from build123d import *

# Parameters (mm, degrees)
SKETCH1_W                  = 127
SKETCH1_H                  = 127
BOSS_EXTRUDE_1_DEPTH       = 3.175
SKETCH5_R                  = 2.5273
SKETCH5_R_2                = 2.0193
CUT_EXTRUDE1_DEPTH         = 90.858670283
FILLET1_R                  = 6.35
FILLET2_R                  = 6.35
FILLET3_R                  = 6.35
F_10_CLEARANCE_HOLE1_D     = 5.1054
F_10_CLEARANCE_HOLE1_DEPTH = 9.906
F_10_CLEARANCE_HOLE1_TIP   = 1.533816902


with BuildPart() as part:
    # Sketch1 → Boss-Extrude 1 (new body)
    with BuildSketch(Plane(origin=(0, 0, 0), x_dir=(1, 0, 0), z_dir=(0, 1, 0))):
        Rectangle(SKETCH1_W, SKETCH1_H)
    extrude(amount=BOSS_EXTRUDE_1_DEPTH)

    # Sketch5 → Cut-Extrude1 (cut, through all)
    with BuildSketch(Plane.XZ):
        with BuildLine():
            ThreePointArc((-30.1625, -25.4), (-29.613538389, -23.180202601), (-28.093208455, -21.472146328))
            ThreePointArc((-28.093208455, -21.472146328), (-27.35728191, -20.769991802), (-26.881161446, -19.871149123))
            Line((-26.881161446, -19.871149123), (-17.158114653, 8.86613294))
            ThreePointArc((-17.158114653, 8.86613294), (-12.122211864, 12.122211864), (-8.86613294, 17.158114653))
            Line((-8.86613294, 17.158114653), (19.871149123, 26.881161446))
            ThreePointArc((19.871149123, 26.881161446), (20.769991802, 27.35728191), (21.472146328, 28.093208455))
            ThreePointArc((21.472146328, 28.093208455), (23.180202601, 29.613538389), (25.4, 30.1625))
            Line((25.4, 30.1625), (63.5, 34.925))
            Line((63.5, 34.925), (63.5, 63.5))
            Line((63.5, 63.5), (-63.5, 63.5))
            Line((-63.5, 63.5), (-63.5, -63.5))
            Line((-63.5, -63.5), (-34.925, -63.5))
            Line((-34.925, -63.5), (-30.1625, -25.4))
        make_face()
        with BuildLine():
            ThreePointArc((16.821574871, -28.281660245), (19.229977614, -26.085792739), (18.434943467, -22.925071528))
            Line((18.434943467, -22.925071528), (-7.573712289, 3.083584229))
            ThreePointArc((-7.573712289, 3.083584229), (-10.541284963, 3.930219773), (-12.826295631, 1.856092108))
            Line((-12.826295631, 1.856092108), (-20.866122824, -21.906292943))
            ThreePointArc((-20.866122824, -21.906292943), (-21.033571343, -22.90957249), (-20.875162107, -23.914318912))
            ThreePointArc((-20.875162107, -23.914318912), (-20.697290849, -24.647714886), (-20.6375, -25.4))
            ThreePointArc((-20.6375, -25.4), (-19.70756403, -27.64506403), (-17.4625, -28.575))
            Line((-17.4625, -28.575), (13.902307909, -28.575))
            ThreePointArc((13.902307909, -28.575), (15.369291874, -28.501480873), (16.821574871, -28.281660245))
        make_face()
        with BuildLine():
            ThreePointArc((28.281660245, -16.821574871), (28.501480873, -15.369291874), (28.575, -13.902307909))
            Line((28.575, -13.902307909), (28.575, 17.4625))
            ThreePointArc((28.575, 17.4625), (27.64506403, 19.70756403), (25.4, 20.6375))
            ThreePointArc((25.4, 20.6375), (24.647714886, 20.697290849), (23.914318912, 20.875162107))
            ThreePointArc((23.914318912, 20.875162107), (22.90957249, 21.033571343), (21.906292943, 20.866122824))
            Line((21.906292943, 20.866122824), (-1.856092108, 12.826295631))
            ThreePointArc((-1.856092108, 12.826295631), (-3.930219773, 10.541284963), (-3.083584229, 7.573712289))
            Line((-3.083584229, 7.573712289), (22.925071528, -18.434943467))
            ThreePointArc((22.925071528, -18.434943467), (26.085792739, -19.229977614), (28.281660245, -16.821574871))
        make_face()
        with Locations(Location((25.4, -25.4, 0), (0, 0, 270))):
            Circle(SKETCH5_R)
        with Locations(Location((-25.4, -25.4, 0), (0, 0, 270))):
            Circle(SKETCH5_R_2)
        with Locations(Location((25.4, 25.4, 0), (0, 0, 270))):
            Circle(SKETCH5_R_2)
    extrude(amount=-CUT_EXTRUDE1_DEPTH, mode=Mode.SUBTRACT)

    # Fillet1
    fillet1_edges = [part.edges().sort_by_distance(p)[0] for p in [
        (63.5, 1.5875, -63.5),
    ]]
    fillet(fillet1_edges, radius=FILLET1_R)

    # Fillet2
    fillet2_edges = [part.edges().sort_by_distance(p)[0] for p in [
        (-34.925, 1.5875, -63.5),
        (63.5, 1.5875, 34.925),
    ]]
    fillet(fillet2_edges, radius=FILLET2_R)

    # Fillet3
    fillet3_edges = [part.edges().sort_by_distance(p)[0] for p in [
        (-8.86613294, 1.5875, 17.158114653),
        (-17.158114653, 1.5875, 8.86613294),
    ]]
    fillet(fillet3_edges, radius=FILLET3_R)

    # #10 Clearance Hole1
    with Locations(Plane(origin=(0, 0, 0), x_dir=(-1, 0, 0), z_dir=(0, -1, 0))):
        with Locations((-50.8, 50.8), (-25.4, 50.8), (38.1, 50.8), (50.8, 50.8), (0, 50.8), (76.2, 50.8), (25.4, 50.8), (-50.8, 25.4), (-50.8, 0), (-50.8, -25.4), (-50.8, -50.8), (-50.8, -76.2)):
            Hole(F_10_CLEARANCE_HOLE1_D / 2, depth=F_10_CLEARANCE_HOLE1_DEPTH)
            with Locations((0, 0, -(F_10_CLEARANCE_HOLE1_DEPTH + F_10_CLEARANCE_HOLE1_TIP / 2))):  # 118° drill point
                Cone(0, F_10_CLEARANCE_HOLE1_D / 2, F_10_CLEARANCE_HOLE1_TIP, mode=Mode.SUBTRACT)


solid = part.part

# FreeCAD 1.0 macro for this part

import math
import FreeCAD as App
import Part
import Sketcher
Q = App.Units.Quantity


def edges_at(feature, points):
    """Names of the edges that pass closest to the given points."""
    edges = feature.Shape.Edges
    near = lambda p: min(range(len(edges)), key=lambda i: edges[i].distToShape(Part.Vertex(*p))[0])
    return sorted({f"Edge{near(p) + 1}" for p in points})

doc = App.newDocument("Part")
body = doc.addObject("PartDesign::Body", "Body")

# Sketch on XZ plane
sketch1 = body.newObject("Sketcher::SketchObject", "Sketch")
sketch1.AttachmentSupport = (doc.getObject("XZ_Plane"), [""])
sketch1.MapMode = "FlatFace"
sketch1.addGeometry([
    Part.LineSegment(App.Vector(-63.5, -63.5, 0), App.Vector(-63.5, 63.5, 0)),
    Part.LineSegment(App.Vector(-63.5, 63.5, 0), App.Vector(63.5, 63.5, 0)),
    Part.LineSegment(App.Vector(63.5, 63.5, 0), App.Vector(63.5, -63.5, 0)),
    Part.LineSegment(App.Vector(63.5, -63.5, 0), App.Vector(-63.5, -63.5, 0)),
], False)
sketch1.addConstraint([
    Sketcher.Constraint("Coincident", 0, 2, 1, 1),
    Sketcher.Constraint("Coincident", 1, 2, 2, 1),
    Sketcher.Constraint("Coincident", 2, 2, 3, 1),
    Sketcher.Constraint("Coincident", 3, 2, 0, 1),
    Sketcher.Constraint("Vertical", 0),
    Sketcher.Constraint("Horizontal", 1),
    Sketcher.Constraint("Vertical", 2),
    Sketcher.Constraint("Horizontal", 3),
    Sketcher.Constraint("Symmetric", 0, 2, 2, 2, -1, 1),
    Sketcher.Constraint("Equal", 3, 0),
    Sketcher.Constraint("DistanceX", 1, 1, 1, 2, Q("5 in")),
])
pad1 = body.newObject("PartDesign::Pad", "Pad")
pad1.Profile = sketch1
pad1.Length = Q("0.125 in")
pad1.Reversed = True

# Sketch on XZ plane
sketch2 = body.newObject("Sketcher::SketchObject", "Sketch001")
sketch2.AttachmentSupport = (doc.getObject("XZ_Plane"), [""])
sketch2.MapMode = "FlatFace"
sketch2.addGeometry([
    Part.ArcOfCircle(Part.Circle(App.Vector(-25.4, -25.4, 0), App.Vector(0, 0, 1), 4.7625), math.radians(124.437234), math.radians(180)),  # 0
    Part.ArcOfCircle(Part.Circle(App.Vector(-29.888681, -18.853577, 0), App.Vector(0, 0, 1), 3.175), math.radians(-55.562766), math.radians(-18.692868)),  # 1
    Part.LineSegment(App.Vector(-26.881161, -19.871149, 0), App.Vector(-17.158115, 8.866133, 0)),  # 2
    Part.ArcOfCircle(Part.Circle(App.Vector(-22.225, 22.225, 0), App.Vector(0, 0, 1), 14.2875), math.radians(-69.228762), math.radians(-20.771238)),  # 3
    Part.LineSegment(App.Vector(-8.866133, 17.158115, 0), App.Vector(19.871149, 26.881161, 0)),  # 4
    Part.ArcOfCircle(Part.Circle(App.Vector(18.853577, 29.888681, 0), App.Vector(0, 0, 1), 3.175), math.radians(-71.307132), math.radians(-34.437234)),  # 5
    Part.ArcOfCircle(Part.Circle(App.Vector(25.4, 25.4, 0), App.Vector(0, 0, 1), 4.7625), math.radians(90), math.radians(145.562766)),  # 6
    Part.LineSegment(App.Vector(25.4, 30.1625, 0), App.Vector(63.5, 34.925, 0)),  # 7
    Part.LineSegment(App.Vector(63.5, 34.925, 0), App.Vector(63.5, 63.5, 0)),  # 8
    Part.LineSegment(App.Vector(63.5, 63.5, 0), App.Vector(-63.5, 63.5, 0)),  # 9
    Part.LineSegment(App.Vector(-63.5, 63.5, 0), App.Vector(-63.5, -63.5, 0)),  # 10
    Part.LineSegment(App.Vector(-63.5, -63.5, 0), App.Vector(-34.925, -63.5, 0)),  # 11
    Part.LineSegment(App.Vector(-34.925, -63.5, 0), App.Vector(-30.1625, -25.4, 0)),  # 12
    Part.ArcOfCircle(Part.Circle(App.Vector(16.189879, -25.170136, 0), App.Vector(0, 0, 1), 3.175), math.radians(-78.523898), math.radians(45)),  # 13
    Part.LineSegment(App.Vector(18.434943, -22.925072, 0), App.Vector(-7.573712, 3.083584, 0)),  # 14
    Part.ArcOfCircle(Part.Circle(App.Vector(-9.818776, 0.83852, 0), App.Vector(0, 0, 1), 3.175), math.radians(45), math.radians(161.307132)),  # 15
    Part.LineSegment(App.Vector(-12.826296, 1.856092, 0), App.Vector(-20.866123, -21.906293, 0)),  # 16
    Part.ArcOfCircle(Part.Circle(App.Vector(-17.858604, -22.923865, 0), App.Vector(0, 0, 1), 3.175), math.radians(161.307132), math.radians(198.177029)),  # 17
    Part.ArcOfCircle(Part.Circle(App.Vector(-25.4, -25.4, 0), App.Vector(0, 0, 1), 4.7625), math.radians(0), math.radians(18.177029)),  # 18
    Part.ArcOfCircle(Part.Circle(App.Vector(-17.4625, -25.4, 0), App.Vector(0, 0, 1), 3.175), math.radians(-180), math.radians(-90)),  # 19
    Part.LineSegment(App.Vector(-17.4625, -28.575, 0), App.Vector(13.902308, -28.575, 0)),  # 20
    Part.ArcOfCircle(Part.Circle(App.Vector(13.902308, -13.902308, 0), App.Vector(0, 0, 1), 14.672692), math.radians(-90), math.radians(-78.523898)),  # 21
    Part.ArcOfCircle(Part.Circle(App.Vector(13.902308, -13.902308, 0), App.Vector(0, 0, 1), 14.672692), math.radians(-11.476102), math.radians(0)),  # 22
    Part.LineSegment(App.Vector(28.575, -13.902308, 0), App.Vector(28.575, 17.4625, 0)),  # 23
    Part.ArcOfCircle(Part.Circle(App.Vector(25.4, 17.4625, 0), App.Vector(0, 0, 1), 3.175), math.radians(0), math.radians(90)),  # 24
    Part.ArcOfCircle(Part.Circle(App.Vector(25.4, 25.4, 0), App.Vector(0, 0, 1), 4.7625), math.radians(-108.177029), math.radians(-90)),  # 25
    Part.ArcOfCircle(Part.Circle(App.Vector(22.923865, 17.858604, 0), App.Vector(0, 0, 1), 3.175), math.radians(71.822971), math.radians(108.692868)),  # 26
    Part.LineSegment(App.Vector(21.906293, 20.866123, 0), App.Vector(-1.856092, 12.826296, 0)),  # 27
    Part.ArcOfCircle(Part.Circle(App.Vector(-0.83852, 9.818776, 0), App.Vector(0, 0, 1), 3.175), math.radians(108.692868), math.radians(225)),  # 28
    Part.LineSegment(App.Vector(-3.083584, 7.573712, 0), App.Vector(22.925072, -18.434943, 0)),  # 29
    Part.ArcOfCircle(Part.Circle(App.Vector(25.170136, -16.189879, 0), App.Vector(0, 0, 1), 3.175), math.radians(-135), math.radians(-11.476102)),  # 30
    Part.Circle(App.Vector(25.4, -25.4, 0), App.Vector(0, 0, 1), 2.5273),  # 31
    Part.Circle(App.Vector(-25.4, -25.4, 0), App.Vector(0, 0, 1), 2.0193),  # 32
    Part.Circle(App.Vector(25.4, 25.4, 0), App.Vector(0, 0, 1), 2.0193),  # 33
], False)
sketch2.addConstraint([
    Sketcher.Constraint("Tangent", 0, 1, 1, 1),
    Sketcher.Constraint("Tangent", 1, 2, 2, 1),
    Sketcher.Constraint("Coincident", 2, 2, 3, 1),
    Sketcher.Constraint("Coincident", 3, 2, 4, 1),
    Sketcher.Constraint("Tangent", 4, 2, 5, 1),
    Sketcher.Constraint("Tangent", 5, 2, 6, 2),
    Sketcher.Constraint("Coincident", 6, 1, 7, 1),
    Sketcher.Constraint("Coincident", 7, 2, 8, 1),
    Sketcher.Constraint("Coincident", 8, 2, 9, 1),
    Sketcher.Constraint("Coincident", 9, 2, 10, 1),
    Sketcher.Constraint("Coincident", 10, 2, 11, 1),
    Sketcher.Constraint("Coincident", 11, 2, 12, 1),
    Sketcher.Constraint("Coincident", 12, 2, 0, 2),
    Sketcher.Constraint("Tangent", 13, 2, 14, 1),
    Sketcher.Constraint("Tangent", 14, 2, 15, 1),
    Sketcher.Constraint("Tangent", 15, 2, 16, 1),
    Sketcher.Constraint("Tangent", 16, 2, 17, 1),
    Sketcher.Constraint("Tangent", 17, 2, 18, 2),
    Sketcher.Constraint("Tangent", 18, 1, 19, 1),
    Sketcher.Constraint("Tangent", 19, 2, 20, 1),
    Sketcher.Constraint("Tangent", 20, 2, 21, 1),
    Sketcher.Constraint("Tangent", 21, 2, 13, 1),
    Sketcher.Constraint("Tangent", 22, 2, 23, 1),
    Sketcher.Constraint("Tangent", 23, 2, 24, 1),
    Sketcher.Constraint("Tangent", 24, 2, 25, 2),
    Sketcher.Constraint("Tangent", 25, 1, 26, 1),
    Sketcher.Constraint("Tangent", 26, 2, 27, 1),
    Sketcher.Constraint("Tangent", 27, 2, 28, 1),
    Sketcher.Constraint("Tangent", 28, 2, 29, 1),
    Sketcher.Constraint("Tangent", 29, 2, 30, 1),
    Sketcher.Constraint("Tangent", 30, 2, 22, 1),
    Sketcher.Constraint("Vertical", 8),
    Sketcher.Constraint("Horizontal", 9),
    Sketcher.Constraint("Vertical", 10),
    Sketcher.Constraint("Horizontal", 11),
    Sketcher.Constraint("Horizontal", 20),
    Sketcher.Constraint("Vertical", 23),
    Sketcher.Constraint("Coincident", 18, 3, 0, 3),
    Sketcher.Constraint("Coincident", 22, 3, 21, 3),
    Sketcher.Constraint("Coincident", 25, 3, 6, 3),
    Sketcher.Constraint("Coincident", 32, 3, 0, 3),
    Sketcher.Constraint("Coincident", 33, 3, 6, 3),
    Sketcher.Constraint("Equal", 1, 5),
    Sketcher.Constraint("Equal", 0, 6),
    Sketcher.Constraint("Equal", 5, 13),
    Sketcher.Constraint("Equal", 13, 15),
    Sketcher.Constraint("Equal", 15, 17),
    Sketcher.Constraint("Equal", 6, 18),
    Sketcher.Constraint("Equal", 17, 19),
    Sketcher.Constraint("Equal", 21, 22),
    Sketcher.Constraint("Equal", 19, 24),
    Sketcher.Constraint("Equal", 18, 25),
    Sketcher.Constraint("Equal", 24, 26),
    Sketcher.Constraint("Equal", 26, 28),
    Sketcher.Constraint("Equal", 28, 30),
    Sketcher.Constraint("Equal", 32, 33),
    Sketcher.Constraint("Symmetric", 0, 3, 6, 3, -1, 1),
    Sketcher.Constraint("Symmetric", 8, 2, 10, 2, -1, 1),
    Sketcher.Constraint("Symmetric", 0, 3, 31, 3, -2),
    Sketcher.Constraint("Parallel", 2, 16),
    Sketcher.Constraint("Parallel", 4, 27),
    Sketcher.Constraint("Parallel", 14, 29),
    Sketcher.Constraint("Horizontal", 18, 3, 19, 3),
    Sketcher.Constraint("Horizontal", 32, 3, 12, 2),
    Sketcher.Constraint("Vertical", 6, 3, 24, 3),
    Sketcher.Constraint("Vertical", 33, 3, 6, 1),
    Sketcher.Constraint("Equal", 11, 8),
    Sketcher.Constraint("Equal", 9, 10),
    Sketcher.Constraint("Equal", 20, 23),
    Sketcher.Constraint("Equal", 2, 4),
    Sketcher.Constraint("Equal", 16, 27),
    Sketcher.Constraint("Equal", 14, 29),
    Sketcher.Constraint("DistanceX", 9, 2, 9, 1, Q("5 in")),
    Sketcher.Constraint("Diameter", 31, Q("0.199 in")),
    Sketcher.Constraint("Diameter", 32, Q("0.159 in")),
    Sketcher.Constraint("DistanceX", 0, 3, -1, 1, Q("1 in")),
    Sketcher.Constraint("Angle", 14, Q("135 deg")),
    Sketcher.Constraint("Radius", 0, Q("0.1875 in")),
    Sketcher.Constraint("Radius", 1, Q("0.125 in")),
    Sketcher.Constraint("Radius", 3, Q("0.5625 in")),
    Sketcher.Constraint("DistanceX", 11, 1, 11, 2, Q("1.125 in")),
    Sketcher.Constraint("DistanceX", 3, 3, -1, 1, Q("0.875 in")),
    Sketcher.Constraint("DistanceY", -1, 1, 3, 3, Q("0.875 in")),
    Sketcher.Constraint("Radius", 21, 14.672692),
    Sketcher.Constraint("Distance", 16, 25.085649),
    Sketcher.Constraint("DistanceX", 1, 3, -1, 1, 29.888681),
    Sketcher.Constraint("DistanceY", -1, 1, 5, 3, 29.888681),
    Sketcher.Constraint("DistanceX", -1, 1, 13, 3, 16.189879),
    Sketcher.Constraint("DistanceY", -1, 1, 15, 3, 0.83852),
])
pocket1 = body.newObject("PartDesign::Pocket", "Pocket")
pocket1.Profile = sketch2
pocket1.Type = "ThroughAll"
doc.recompute()

fillet = body.newObject("PartDesign::Fillet", "Fillet")
fillet.Base = (pocket1, edges_at(pocket1, [(63.5, 1.587, -63.5)]))
fillet.Radius = Q("0.25 in")
doc.recompute()

fillet2 = body.newObject("PartDesign::Fillet", "Fillet001")
fillet2.Base = (fillet, edges_at(fillet, [(-34.925, 1.587, -63.5), (63.5, 1.587, 34.925)]))
fillet2.Radius = Q("0.25 in")
doc.recompute()

fillet3 = body.newObject("PartDesign::Fillet", "Fillet002")
fillet3.Base = (fillet2, edges_at(fillet2, [(-8.866, 1.587, 17.158), (-17.158, 1.587, 8.866)]))
fillet3.Radius = Q("0.25 in")

# Sketch on XZ plane
sketch3 = body.newObject("Sketcher::SketchObject", "Sketch002")
sketch3.AttachmentSupport = (doc.getObject("XZ_Plane"), [""])
sketch3.MapMode = "FlatFace"
sketch3.addGeometry([
    Part.Circle(App.Vector(50.8, -50.8, 0), App.Vector(0, 0, 1), 2.5527),  # 0
    Part.Circle(App.Vector(25.4, -50.8, 0), App.Vector(0, 0, 1), 2.5527),  # 1
    Part.Circle(App.Vector(-38.1, -50.8, 0), App.Vector(0, 0, 1), 2.5527),  # 2
    Part.Circle(App.Vector(-50.8, -50.8, 0), App.Vector(0, 0, 1), 2.5527),  # 3
    Part.Circle(App.Vector(0, -50.8, 0), App.Vector(0, 0, 1), 2.5527),  # 4
    Part.Circle(App.Vector(-76.2, -50.8, 0), App.Vector(0, 0, 1), 2.5527),  # 5
    Part.Circle(App.Vector(-25.4, -50.8, 0), App.Vector(0, 0, 1), 2.5527),  # 6
    Part.Circle(App.Vector(50.8, -25.4, 0), App.Vector(0, 0, 1), 2.5527),  # 7
    Part.Circle(App.Vector(50.8, 0, 0), App.Vector(0, 0, 1), 2.5527),  # 8
    Part.Circle(App.Vector(50.8, 25.4, 0), App.Vector(0, 0, 1), 2.5527),  # 9
    Part.Circle(App.Vector(50.8, 50.8, 0), App.Vector(0, 0, 1), 2.5527),  # 10
    Part.Circle(App.Vector(50.8, 76.2, 0), App.Vector(0, 0, 1), 2.5527),  # 11
], False)
sketch3.addConstraint([
    Sketcher.Constraint("Equal", 0, 1),
    Sketcher.Constraint("Equal", 1, 2),
    Sketcher.Constraint("Equal", 2, 3),
    Sketcher.Constraint("Equal", 3, 4),
    Sketcher.Constraint("Equal", 4, 5),
    Sketcher.Constraint("Equal", 5, 6),
    Sketcher.Constraint("Equal", 6, 7),
    Sketcher.Constraint("Equal", 7, 8),
    Sketcher.Constraint("Equal", 8, 9),
    Sketcher.Constraint("Equal", 9, 10),
    Sketcher.Constraint("Equal", 10, 11),
    Sketcher.Constraint("Symmetric", 3, 3, 10, 3, -1, 1),
    Sketcher.Constraint("Symmetric", 0, 3, 3, 3, -2),
    Sketcher.Constraint("Symmetric", 1, 3, 6, 3, -2),
    Sketcher.Constraint("Symmetric", 7, 3, 9, 3, -1),
    Sketcher.Constraint("PointOnObject", 4, 3, -2),
    Sketcher.Constraint("PointOnObject", 8, 3, -1),
    Sketcher.Constraint("Horizontal", 0, 3, 1, 3),
    Sketcher.Constraint("Horizontal", 1, 3, 2, 3),
    Sketcher.Constraint("Horizontal", 3, 3, 4, 3),
    Sketcher.Constraint("Horizontal", 4, 3, 5, 3),
    Sketcher.Constraint("Vertical", 0, 3, 7, 3),
    Sketcher.Constraint("Vertical", 7, 3, 8, 3),
    Sketcher.Constraint("Vertical", 10, 3, 11, 3),
    Sketcher.Constraint("Diameter", 0, Q("0.201 in")),
    Sketcher.Constraint("DistanceX", -1, 1, 0, 3, Q("2 in")),
    Sketcher.Constraint("DistanceY", 0, 3, -1, 1, Q("2 in")),
    Sketcher.Constraint("DistanceX", -1, 1, 1, 3, Q("1 in")),
    Sketcher.Constraint("DistanceX", 5, 3, -1, 1, Q("3 in")),
    Sketcher.Constraint("DistanceY", 7, 3, -1, 1, Q("1 in")),
    Sketcher.Constraint("DistanceY", -1, 1, 11, 3, Q("3 in")),
    Sketcher.Constraint("DistanceX", 2, 3, -1, 1, Q("1.5 in")),
])
doc.recompute()
hole = body.newObject("PartDesign::Hole", "Hole")
hole.Profile = sketch3
hole.ThreadType = "None"
hole.Diameter = Q("0.201 in")
hole.DepthType = "Dimension"
hole.Depth = Q("0.39 in")
hole.DrillPoint = "Angled"
hole.DrillPointAngle = 118

doc.recompute()
